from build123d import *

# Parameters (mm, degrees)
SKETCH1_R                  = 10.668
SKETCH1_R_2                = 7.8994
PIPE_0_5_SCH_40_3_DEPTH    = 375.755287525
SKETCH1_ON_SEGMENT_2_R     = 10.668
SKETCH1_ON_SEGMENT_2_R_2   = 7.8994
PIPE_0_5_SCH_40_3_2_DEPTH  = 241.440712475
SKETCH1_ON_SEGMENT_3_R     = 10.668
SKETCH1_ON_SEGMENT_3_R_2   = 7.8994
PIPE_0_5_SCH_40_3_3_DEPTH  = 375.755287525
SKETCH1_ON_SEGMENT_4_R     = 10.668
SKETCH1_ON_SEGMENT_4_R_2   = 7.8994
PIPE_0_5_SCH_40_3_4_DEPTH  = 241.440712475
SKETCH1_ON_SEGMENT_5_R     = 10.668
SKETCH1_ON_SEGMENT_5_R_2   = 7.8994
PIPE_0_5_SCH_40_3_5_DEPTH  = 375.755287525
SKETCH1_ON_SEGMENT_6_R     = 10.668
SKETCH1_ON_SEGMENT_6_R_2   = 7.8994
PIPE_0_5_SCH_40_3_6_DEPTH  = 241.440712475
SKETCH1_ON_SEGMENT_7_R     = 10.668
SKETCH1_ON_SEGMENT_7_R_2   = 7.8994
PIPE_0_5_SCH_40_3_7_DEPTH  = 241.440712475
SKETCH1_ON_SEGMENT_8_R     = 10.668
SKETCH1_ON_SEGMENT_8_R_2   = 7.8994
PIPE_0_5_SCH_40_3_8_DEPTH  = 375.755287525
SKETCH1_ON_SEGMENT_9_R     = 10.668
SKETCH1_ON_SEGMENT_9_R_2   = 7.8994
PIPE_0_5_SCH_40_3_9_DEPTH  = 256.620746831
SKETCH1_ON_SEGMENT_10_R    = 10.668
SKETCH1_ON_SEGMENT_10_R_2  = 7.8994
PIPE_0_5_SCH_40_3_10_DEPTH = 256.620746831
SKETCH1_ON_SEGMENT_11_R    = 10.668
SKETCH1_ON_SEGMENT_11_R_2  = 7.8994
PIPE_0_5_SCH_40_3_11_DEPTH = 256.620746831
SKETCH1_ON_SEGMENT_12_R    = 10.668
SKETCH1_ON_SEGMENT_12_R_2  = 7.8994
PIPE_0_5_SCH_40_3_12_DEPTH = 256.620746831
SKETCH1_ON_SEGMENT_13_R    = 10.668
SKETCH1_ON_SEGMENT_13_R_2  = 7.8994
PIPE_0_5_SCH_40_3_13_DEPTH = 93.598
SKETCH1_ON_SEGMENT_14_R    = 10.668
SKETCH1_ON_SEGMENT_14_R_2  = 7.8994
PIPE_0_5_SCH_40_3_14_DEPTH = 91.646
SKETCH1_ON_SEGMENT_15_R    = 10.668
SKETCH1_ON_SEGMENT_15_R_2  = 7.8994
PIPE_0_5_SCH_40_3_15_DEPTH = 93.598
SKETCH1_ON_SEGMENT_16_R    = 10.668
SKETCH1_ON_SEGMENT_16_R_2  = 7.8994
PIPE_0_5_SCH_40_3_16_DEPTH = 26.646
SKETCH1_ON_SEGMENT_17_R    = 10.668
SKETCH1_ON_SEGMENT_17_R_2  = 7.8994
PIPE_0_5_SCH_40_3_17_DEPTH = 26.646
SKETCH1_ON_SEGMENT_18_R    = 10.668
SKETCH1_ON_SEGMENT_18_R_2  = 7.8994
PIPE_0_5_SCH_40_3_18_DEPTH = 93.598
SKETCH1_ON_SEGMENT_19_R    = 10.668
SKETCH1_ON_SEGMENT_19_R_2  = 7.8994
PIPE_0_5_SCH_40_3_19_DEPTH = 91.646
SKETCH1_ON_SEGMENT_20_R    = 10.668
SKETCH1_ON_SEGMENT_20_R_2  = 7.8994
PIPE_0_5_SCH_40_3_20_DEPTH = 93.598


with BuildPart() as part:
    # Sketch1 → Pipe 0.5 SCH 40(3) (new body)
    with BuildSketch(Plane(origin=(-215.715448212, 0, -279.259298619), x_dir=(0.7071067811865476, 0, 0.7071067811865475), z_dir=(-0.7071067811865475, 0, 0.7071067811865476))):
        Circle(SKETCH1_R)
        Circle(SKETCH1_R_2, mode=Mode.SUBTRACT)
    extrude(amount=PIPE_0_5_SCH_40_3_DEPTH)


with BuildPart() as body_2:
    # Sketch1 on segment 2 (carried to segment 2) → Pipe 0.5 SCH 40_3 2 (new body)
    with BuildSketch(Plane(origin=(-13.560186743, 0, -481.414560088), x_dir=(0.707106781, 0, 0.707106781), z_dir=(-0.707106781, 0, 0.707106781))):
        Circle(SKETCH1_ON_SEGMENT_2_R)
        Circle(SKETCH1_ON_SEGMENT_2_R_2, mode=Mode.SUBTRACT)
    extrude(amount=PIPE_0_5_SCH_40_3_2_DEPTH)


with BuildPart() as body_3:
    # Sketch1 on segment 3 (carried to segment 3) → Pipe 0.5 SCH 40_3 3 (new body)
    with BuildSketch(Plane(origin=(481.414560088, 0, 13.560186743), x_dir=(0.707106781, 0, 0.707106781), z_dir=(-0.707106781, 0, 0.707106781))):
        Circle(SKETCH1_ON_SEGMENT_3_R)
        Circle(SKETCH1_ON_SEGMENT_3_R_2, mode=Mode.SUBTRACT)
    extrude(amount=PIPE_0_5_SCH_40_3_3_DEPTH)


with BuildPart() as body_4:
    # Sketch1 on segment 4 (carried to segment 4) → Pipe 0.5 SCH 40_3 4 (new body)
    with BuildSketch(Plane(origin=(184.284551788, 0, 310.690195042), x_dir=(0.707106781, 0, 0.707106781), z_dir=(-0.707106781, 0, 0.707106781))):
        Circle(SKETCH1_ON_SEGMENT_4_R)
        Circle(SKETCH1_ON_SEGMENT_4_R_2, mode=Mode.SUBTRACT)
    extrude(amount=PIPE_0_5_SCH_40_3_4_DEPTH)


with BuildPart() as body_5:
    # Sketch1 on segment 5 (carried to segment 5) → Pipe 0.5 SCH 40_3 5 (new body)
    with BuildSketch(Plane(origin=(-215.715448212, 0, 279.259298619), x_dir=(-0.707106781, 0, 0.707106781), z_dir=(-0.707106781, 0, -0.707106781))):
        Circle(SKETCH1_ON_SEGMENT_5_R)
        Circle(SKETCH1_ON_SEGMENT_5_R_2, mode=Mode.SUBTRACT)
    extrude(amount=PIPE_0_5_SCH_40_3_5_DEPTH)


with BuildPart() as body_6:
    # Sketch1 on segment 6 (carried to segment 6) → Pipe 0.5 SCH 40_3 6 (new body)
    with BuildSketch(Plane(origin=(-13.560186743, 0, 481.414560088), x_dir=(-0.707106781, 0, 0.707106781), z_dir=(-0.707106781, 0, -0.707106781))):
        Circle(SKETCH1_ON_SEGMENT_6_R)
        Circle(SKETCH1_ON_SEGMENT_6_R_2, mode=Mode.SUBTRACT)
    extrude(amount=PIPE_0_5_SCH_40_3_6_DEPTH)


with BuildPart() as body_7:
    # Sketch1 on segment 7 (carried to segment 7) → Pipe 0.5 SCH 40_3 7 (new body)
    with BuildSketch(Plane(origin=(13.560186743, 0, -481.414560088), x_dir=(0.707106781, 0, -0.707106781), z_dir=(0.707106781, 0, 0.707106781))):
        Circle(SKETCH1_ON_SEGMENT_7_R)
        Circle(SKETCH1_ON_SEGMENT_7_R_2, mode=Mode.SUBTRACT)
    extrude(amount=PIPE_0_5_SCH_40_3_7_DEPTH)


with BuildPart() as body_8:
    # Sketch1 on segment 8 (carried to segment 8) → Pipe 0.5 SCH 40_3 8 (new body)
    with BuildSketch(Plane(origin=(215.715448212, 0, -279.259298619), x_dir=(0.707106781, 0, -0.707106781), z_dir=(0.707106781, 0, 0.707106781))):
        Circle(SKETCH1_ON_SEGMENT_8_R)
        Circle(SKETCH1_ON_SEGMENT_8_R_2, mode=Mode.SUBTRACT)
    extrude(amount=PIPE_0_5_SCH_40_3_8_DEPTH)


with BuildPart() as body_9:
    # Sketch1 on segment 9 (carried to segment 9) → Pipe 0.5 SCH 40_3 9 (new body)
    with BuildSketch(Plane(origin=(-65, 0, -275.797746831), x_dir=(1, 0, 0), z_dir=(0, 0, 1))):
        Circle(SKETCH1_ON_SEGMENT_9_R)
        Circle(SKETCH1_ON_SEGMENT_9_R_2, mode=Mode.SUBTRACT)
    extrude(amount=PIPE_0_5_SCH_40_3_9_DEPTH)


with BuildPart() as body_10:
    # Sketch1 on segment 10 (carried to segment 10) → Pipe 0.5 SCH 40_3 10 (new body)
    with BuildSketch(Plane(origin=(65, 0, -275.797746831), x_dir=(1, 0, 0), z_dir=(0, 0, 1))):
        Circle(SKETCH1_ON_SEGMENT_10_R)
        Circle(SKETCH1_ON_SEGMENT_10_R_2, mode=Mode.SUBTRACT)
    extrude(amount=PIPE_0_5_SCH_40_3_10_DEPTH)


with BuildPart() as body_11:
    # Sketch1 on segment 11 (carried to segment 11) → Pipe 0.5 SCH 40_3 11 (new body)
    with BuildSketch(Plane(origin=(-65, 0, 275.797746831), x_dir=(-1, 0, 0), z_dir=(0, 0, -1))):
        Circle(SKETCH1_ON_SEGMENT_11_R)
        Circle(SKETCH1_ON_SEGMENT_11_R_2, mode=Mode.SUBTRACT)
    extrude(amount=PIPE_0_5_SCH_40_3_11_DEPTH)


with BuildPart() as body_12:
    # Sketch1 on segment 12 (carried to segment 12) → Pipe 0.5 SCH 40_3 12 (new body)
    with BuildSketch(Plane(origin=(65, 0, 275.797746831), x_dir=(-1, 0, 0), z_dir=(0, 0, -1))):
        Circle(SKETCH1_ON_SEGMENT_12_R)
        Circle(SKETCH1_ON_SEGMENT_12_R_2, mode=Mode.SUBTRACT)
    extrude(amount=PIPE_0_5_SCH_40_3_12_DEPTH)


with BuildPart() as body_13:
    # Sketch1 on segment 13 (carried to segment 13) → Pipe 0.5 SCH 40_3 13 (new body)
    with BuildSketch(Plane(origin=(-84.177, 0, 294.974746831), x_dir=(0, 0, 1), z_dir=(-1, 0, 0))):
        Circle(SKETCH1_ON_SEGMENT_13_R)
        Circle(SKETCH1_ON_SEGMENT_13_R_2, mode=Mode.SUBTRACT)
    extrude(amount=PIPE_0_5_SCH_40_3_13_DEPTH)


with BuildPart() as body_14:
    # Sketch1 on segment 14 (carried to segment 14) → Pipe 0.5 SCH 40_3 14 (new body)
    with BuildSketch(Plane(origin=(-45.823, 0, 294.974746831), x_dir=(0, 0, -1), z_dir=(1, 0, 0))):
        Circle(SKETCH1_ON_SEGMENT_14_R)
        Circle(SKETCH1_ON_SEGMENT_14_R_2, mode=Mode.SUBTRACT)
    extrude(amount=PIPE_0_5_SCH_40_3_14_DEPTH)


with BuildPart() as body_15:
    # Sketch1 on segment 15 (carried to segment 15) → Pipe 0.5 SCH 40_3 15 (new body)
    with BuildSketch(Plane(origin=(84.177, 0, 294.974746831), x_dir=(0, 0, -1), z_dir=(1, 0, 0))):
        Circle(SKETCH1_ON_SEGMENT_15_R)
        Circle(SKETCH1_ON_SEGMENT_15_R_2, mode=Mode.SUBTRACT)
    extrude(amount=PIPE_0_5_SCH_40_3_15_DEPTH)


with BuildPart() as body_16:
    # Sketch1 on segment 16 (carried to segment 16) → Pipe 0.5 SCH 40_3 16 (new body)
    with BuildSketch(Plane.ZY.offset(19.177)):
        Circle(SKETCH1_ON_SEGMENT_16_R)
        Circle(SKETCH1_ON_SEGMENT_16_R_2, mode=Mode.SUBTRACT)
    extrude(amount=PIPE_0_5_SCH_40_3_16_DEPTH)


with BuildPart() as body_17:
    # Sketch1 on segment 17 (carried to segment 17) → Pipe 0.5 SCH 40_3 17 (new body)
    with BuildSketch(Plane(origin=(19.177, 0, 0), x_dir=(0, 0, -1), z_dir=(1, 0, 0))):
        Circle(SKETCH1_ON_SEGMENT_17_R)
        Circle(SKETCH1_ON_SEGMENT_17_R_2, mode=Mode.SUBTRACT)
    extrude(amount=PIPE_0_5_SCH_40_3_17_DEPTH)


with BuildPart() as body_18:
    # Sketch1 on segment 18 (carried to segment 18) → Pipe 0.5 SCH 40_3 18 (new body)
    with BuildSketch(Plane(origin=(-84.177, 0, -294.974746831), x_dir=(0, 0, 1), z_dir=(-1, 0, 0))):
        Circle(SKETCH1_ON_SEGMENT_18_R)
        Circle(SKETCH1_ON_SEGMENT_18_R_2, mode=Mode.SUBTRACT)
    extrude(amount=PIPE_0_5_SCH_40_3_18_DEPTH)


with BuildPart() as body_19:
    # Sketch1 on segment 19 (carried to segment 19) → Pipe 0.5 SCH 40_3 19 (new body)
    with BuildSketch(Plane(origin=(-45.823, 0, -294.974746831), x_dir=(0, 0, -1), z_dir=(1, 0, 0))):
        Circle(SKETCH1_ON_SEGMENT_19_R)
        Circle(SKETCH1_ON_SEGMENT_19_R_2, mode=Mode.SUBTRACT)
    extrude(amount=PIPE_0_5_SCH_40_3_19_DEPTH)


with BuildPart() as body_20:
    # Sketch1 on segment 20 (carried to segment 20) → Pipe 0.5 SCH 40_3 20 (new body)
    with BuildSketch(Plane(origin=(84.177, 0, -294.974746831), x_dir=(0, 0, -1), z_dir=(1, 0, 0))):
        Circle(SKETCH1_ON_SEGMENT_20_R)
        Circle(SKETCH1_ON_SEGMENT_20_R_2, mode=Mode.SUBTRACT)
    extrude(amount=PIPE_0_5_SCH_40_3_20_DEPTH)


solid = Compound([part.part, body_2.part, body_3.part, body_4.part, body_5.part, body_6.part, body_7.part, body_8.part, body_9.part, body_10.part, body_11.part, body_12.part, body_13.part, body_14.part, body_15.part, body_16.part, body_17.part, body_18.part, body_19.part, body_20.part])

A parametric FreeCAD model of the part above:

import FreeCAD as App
import Part
import Sketcher
from FreeCAD import Vector
Q = App.Units.Quantity

doc = App.newDocument("Part")
body = doc.addObject("PartDesign::Body", "Body")

sketch1 = doc.addObject("Sketcher::SketchObject", "Sketch")
body.addObject(sketch1)
sketch1.Placement = App.Placement(Vector(-215.715448, 0, -279.259299), App.Rotation(Vector(0.707106781, 0, 0.707106781), Vector(0, 0.999999999, 0), Vector(-0.707106781, 0, 0.707106781), "ZXY"))
sketch1.addGeometry(Part.Circle(Vector(0, 0, 0), Vector(0, 0, 1), 10.668), False)
sketch1.addGeometry(Part.Circle(Vector(0, 0, 0), Vector(0, 0, 1), 7.8994), False)
sketch1.addConstraint(Sketcher.Constraint("Coincident", 0, 3, -1, 1))
sketch1.addConstraint(Sketcher.Constraint("Coincident", 1, 3, -1, 1))
sketch1.addConstraint(Sketcher.Constraint("Diameter", 0, Q("0.84 in")))
sketch1.addConstraint(Sketcher.Constraint("Diameter", 1, Q("0.622 in")))
pad1 = doc.addObject("PartDesign::Pad", "Pad")
body.addObject(pad1)
pad1.Profile = sketch1
pad1.Length = 375.755288
body2 = doc.addObject("PartDesign::Body", "Body001")

sketch2 = doc.addObject("Sketcher::SketchObject", "Sketch001")
body2.addObject(sketch2)
sketch2.Placement = App.Placement(Vector(-13.560187, 0, -481.41456), App.Rotation(Vector(0.707106781, 0, 0.707106781), Vector(0, 0.999999999, 0), Vector(-0.707106781, 0, 0.707106781), "ZXY"))
sketch2.addGeometry(Part.Circle(Vector(0, 0, 0), Vector(0, 0, 1), 10.668), False)
sketch2.addGeometry(Part.Circle(Vector(0, 0, 0), Vector(0, 0, 1), 7.8994), False)
sketch2.addConstraint(Sketcher.Constraint("Coincident", 0, 3, -1, 1))
sketch2.addConstraint(Sketcher.Constraint("Coincident", 1, 3, -1, 1))
sketch2.addConstraint(Sketcher.Constraint("Diameter", 0, Q("0.84 in")))
sketch2.addConstraint(Sketcher.Constraint("Diameter", 1, Q("0.622 in")))
pad2 = doc.addObject("PartDesign::Pad", "Pad001")
body2.addObject(pad2)
pad2.Profile = sketch2
pad2.Length = 241.440712
body3 = doc.addObject("PartDesign::Body", "Body002")

sketch3 = doc.addObject("Sketcher::SketchObject", "Sketch002")
body3.addObject(sketch3)
sketch3.Placement = App.Placement(Vector(481.41456, 0, 13.560187), App.Rotation(Vector(0.707106781, 0, 0.707106781), Vector(0, 0.999999999, 0), Vector(-0.707106781, 0, 0.707106781), "ZXY"))
sketch3.addGeometry(Part.Circle(Vector(0, 0, 0), Vector(0, 0, 1), 10.668), False)
sketch3.addGeometry(Part.Circle(Vector(0, 0, 0), Vector(0, 0, 1), 7.8994), False)
sketch3.addConstraint(Sketcher.Constraint("Coincident", 0, 3, -1, 1))
sketch3.addConstraint(Sketcher.Constraint("Coincident", 1, 3, -1, 1))
sketch3.addConstraint(Sketcher.Constraint("Diameter", 0, Q("0.84 in")))
sketch3.addConstraint(Sketcher.Constraint("Diameter", 1, Q("0.622 in")))
pad3 = doc.addObject("PartDesign::Pad", "Pad002")
body3.addObject(pad3)
pad3.Profile = sketch3
pad3.Length = 375.755288
body4 = doc.addObject("PartDesign::Body", "Body003")

sketch4 = doc.addObject("Sketcher::SketchObject", "Sketch003")
body4.addObject(sketch4)
sketch4.Placement = App.Placement(Vector(184.284552, 0, 310.690195), App.Rotation(Vector(0.707106781, 0, 0.707106781), Vector(0, 0.999999999, 0), Vector(-0.707106781, 0, 0.707106781), "ZXY"))
sketch4.addGeometry(Part.Circle(Vector(0, 0, 0), Vector(0, 0, 1), 10.668), False)
sketch4.addGeometry(Part.Circle(Vector(0, 0, 0), Vector(0, 0, 1), 7.8994), False)
sketch4.addConstraint(Sketcher.Constraint("Coincident", 0, 3, -1, 1))
sketch4.addConstraint(Sketcher.Constraint("Coincident", 1, 3, -1, 1))
sketch4.addConstraint(Sketcher.Constraint("Diameter", 0, Q("0.84 in")))
sketch4.addConstraint(Sketcher.Constraint("Diameter", 1, Q("0.622 in")))
pad4 = doc.addObject("PartDesign::Pad", "Pad003")
body4.addObject(pad4)
pad4.Profile = sketch4
pad4.Length = 241.440712
body5 = doc.addObject("PartDesign::Body", "Body004")

sketch5 = doc.addObject("Sketcher::SketchObject", "Sketch004")
body5.addObject(sketch5)
sketch5.Placement = App.Placement(Vector(-215.715448, 0, 279.259299), App.Rotation(Vector(-0.707106781, 0, 0.707106781), Vector(0, 0.999999999, 0), Vector(-0.707106781, 0, -0.707106781), "ZXY"))
sketch5.addGeometry(Part.Circle(Vector(0, 0, 0), Vector(0, 0, 1), 10.668), False)
sketch5.addGeometry(Part.Circle(Vector(0, 0, 0), Vector(0, 0, 1), 7.8994), False)
sketch5.addConstraint(Sketcher.Constraint("Coincident", 0, 3, -1, 1))
sketch5.addConstraint(Sketcher.Constraint("Coincident", 1, 3, -1, 1))
sketch5.addConstraint(Sketcher.Constraint("Diameter", 0, Q("0.84 in")))
sketch5.addConstraint(Sketcher.Constraint("Diameter", 1, Q("0.622 in")))
pad5 = doc.addObject("PartDesign::Pad", "Pad004")
body5.addObject(pad5)
pad5.Profile = sketch5
pad5.Length = 375.755288
body6 = doc.addObject("PartDesign::Body", "Body005")

sketch6 = doc.addObject("Sketcher::SketchObject", "Sketch005")
body6.addObject(sketch6)
sketch6.Placement = App.Placement(Vector(-13.560187, 0, 481.41456), App.Rotation(Vector(-0.707106781, 0, 0.707106781), Vector(0, 0.999999999, 0), Vector(-0.707106781, 0, -0.707106781), "ZXY"))
sketch6.addGeometry(Part.Circle(Vector(0, 0, 0), Vector(0, 0, 1), 10.668), False)
sketch6.addGeometry(Part.Circle(Vector(0, 0, 0), Vector(0, 0, 1), 7.8994), False)
sketch6.addConstraint(Sketcher.Constraint("Coincident", 0, 3, -1, 1))
sketch6.addConstraint(Sketcher.Constraint("Coincident", 1, 3, -1, 1))
sketch6.addConstraint(Sketcher.Constraint("Diameter", 0, Q("0.84 in")))
sketch6.addConstraint(Sketcher.Constraint("Diameter", 1, Q("0.622 in")))
pad6 = doc.addObject("PartDesign::Pad", "Pad005")
body6.addObject(pad6)
pad6.Profile = sketch6
pad6.Length = 241.440712
body7 = doc.addObject("PartDesign::Body", "Body006")

sketch7 = doc.addObject("Sketcher::SketchObject", "Sketch006")
body7.addObject(sketch7)
sketch7.Placement = App.Placement(Vector(13.560187, 0, -481.41456), App.Rotation(Vector(0.707106781, 0, -0.707106781), Vector(0, 0.999999999, 0), Vector(0.707106781, 0, 0.707106781), "ZXY"))
sketch7.addGeometry(Part.Circle(Vector(0, 0, 0), Vector(0, 0, 1), 10.668), False)
sketch7.addGeometry(Part.Circle(Vector(0, 0, 0), Vector(0, 0, 1), 7.8994), False)
sketch7.addConstraint(Sketcher.Constraint("Coincident", 0, 3, -1, 1))
sketch7.addConstraint(Sketcher.Constraint("Coincident", 1, 3, -1, 1))
sketch7.addConstraint(Sketcher.Constraint("Diameter", 0, Q("0.84 in")))
sketch7.addConstraint(Sketcher.Constraint("Diameter", 1, Q("0.622 in")))
pad7 = doc.addObject("PartDesign::Pad", "Pad006")
body7.addObject(pad7)
pad7.Profile = sketch7
pad7.Length = 241.440712
body8 = doc.addObject("PartDesign::Body", "Body007")

sketch8 = doc.addObject("Sketcher::SketchObject", "Sketch007")
body8.addObject(sketch8)
sketch8.Placement = App.Placement(Vector(215.715448, 0, -279.259299), App.Rotation(Vector(0.707106781, 0, -0.707106781), Vector(0, 0.999999999, 0), Vector(0.707106781, 0, 0.707106781), "ZXY"))
sketch8.addGeometry(Part.Circle(Vector(0, 0, 0), Vector(0, 0, 1), 10.668), False)
sketch8.addGeometry(Part.Circle(Vector(0, 0, 0), Vector(0, 0, 1), 7.8994), False)
sketch8.addConstraint(Sketcher.Constraint("Coincident", 0, 3, -1, 1))
sketch8.addConstraint(Sketcher.Constraint("Coincident", 1, 3, -1, 1))
sketch8.addConstraint(Sketcher.Constraint("Diameter", 0, Q("0.84 in")))
sketch8.addConstraint(Sketcher.Constraint("Diameter", 1, Q("0.622 in")))
pad8 = doc.addObject("PartDesign::Pad", "Pad007")
body8.addObject(pad8)
pad8.Profile = sketch8
pad8.Length = 375.755288
body9 = doc.addObject("PartDesign::Body", "Body008")

sketch9 = doc.addObject("Sketcher::SketchObject", "Sketch008")
body9.addObject(sketch9)
sketch9.AttachmentSupport = (doc.getObject("XY_Plane008"), [""])
sketch9.MapMode = "FlatFace"
sketch9.AttachmentOffset = App.Placement(Vector(0, 0, -275.797747), App.Rotation())
sketch9.addGeometry(Part.Circle(Vector(-65, 0, 0), Vector(0, 0, 1), 10.668), False)
sketch9.addGeometry(Part.Circle(Vector(-65, 0, 0), Vector(0, 0, 1), 7.8994), False)
sketch9.addConstraint(Sketcher.Constraint("Coincident", 1, 3, 0, 3))
sketch9.addConstraint(Sketcher.Constraint("PointOnObject", 0, 3, -1))
sketch9.addConstraint(Sketcher.Constraint("Diameter", 0, Q("0.84 in")))
sketch9.addConstraint(Sketcher.Constraint("Diameter", 1, Q("0.622 in")))
sketch9.addConstraint(Sketcher.Constraint("DistanceX", 0, 3, -1, 1, Q("65 mm")))
pad9 = doc.addObject("PartDesign::Pad", "Pad008")
body9.addObject(pad9)
pad9.Profile = sketch9
pad9.Length = 256.620747
body10 = doc.addObject("PartDesign::Body", "Body009")

sketch10 = doc.addObject("Sketcher::SketchObject", "Sketch009")
body10.addObject(sketch10)
sketch10.AttachmentSupport = (doc.getObject("XY_Plane009"), [""])
sketch10.MapMode = "FlatFace"
sketch10.AttachmentOffset = App.Placement(Vector(0, 0, -275.797747), App.Rotation())
sketch10.addGeometry(Part.Circle(Vector(65, 0, 0), Vector(0, 0, 1), 10.668), False)
sketch10.addGeometry(Part.Circle(Vector(65, 0, 0), Vector(0, 0, 1), 7.8994), False)
sketch10.addConstraint(Sketcher.Constraint("Coincident", 1, 3, 0, 3))
sketch10.addConstraint(Sketcher.Constraint("PointOnObject", 0, 3, -1))
sketch10.addConstraint(Sketcher.Constraint("Diameter", 0, Q("0.84 in")))
sketch10.addConstraint(Sketcher.Constraint("Diameter", 1, Q("0.622 in")))
sketch10.addConstraint(Sketcher.Constraint("DistanceX", -1, 1, 0, 3, Q("65 mm")))
pad10 = doc.addObject("PartDesign::Pad", "Pad009")
body10.addObject(pad10)
pad10.Profile = sketch10
pad10.Length = 256.620747
body11 = doc.addObject("PartDesign::Body", "Body010")

sketch11 = doc.addObject("Sketcher::SketchObject", "Sketch010")
body11.addObject(sketch11)
sketch11.AttachmentSupport = (doc.getObject("XY_Plane010"), [""])
sketch11.MapMode = "FlatFace"
sketch11.AttachmentOffset = App.Placement(Vector(0, 0, 275.797747), App.Rotation())
sketch11.addGeometry(Part.Circle(Vector(-65, 0, 0), Vector(0, 0, 1), 10.668), False)
sketch11.addGeometry(Part.Circle(Vector(-65, 0, 0), Vector(0, 0, 1), 7.8994), False)
sketch11.addConstraint(Sketcher.Constraint("Coincident", 1, 3, 0, 3))
sketch11.addConstraint(Sketcher.Constraint("PointOnObject", 0, 3, -1))
sketch11.addConstraint(Sketcher.Constraint("Diameter", 0, Q("0.84 in")))
sketch11.addConstraint(Sketcher.Constraint("Diameter", 1, Q("0.622 in")))
sketch11.addConstraint(Sketcher.Constraint("DistanceX", 0, 3, -1, 1, Q("65 mm")))
pad11 = doc.addObject("PartDesign::Pad", "Pad010")
body11.addObject(pad11)
pad11.Profile = sketch11
pad11.Length = 256.620747
pad11.Reversed = True
body12 = doc.addObject("PartDesign::Body", "Body011")

sketch12 = doc.addObject("Sketcher::SketchObject", "Sketch011")
body12.addObject(sketch12)
sketch12.AttachmentSupport = (doc.getObject("XY_Plane011"), [""])
sketch12.MapMode = "FlatFace"
sketch12.AttachmentOffset = App.Placement(Vector(0, 0, 275.797747), App.Rotation())
sketch12.addGeometry(Part.Circle(Vector(65, 0, 0), Vector(0, 0, 1), 10.668), False)
sketch12.addGeometry(Part.Circle(Vector(65, 0, 0), Vector(0, 0, 1), 7.8994), False)
sketch12.addConstraint(Sketcher.Constraint("Coincident", 1, 3, 0, 3))
sketch12.addConstraint(Sketcher.Constraint("PointOnObject", 0, 3, -1))
sketch12.addConstraint(Sketcher.Constraint("Diameter", 0, Q("0.84 in")))
sketch12.addConstraint(Sketcher.Constraint("Diameter", 1, Q("0.622 in")))
sketch12.addConstraint(Sketcher.Constraint("DistanceX", -1, 1, 0, 3, Q("65 mm")))
pad12 = doc.addObject("PartDesign::Pad", "Pad011")
body12.addObject(pad12)
pad12.Profile = sketch12
pad12.Length = 256.620747
pad12.Reversed = True
body13 = doc.addObject("PartDesign::Body", "Body012")

sketch13 = doc.addObject("Sketcher::SketchObject", "Sketch012")
body13.addObject(sketch13)
sketch13.AttachmentSupport = (doc.getObject("YZ_Plane012"), [""])
sketch13.MapMode = "FlatFace"
sketch13.AttachmentOffset = App.Placement(Vector(0, 0, -84.177), App.Rotation())
sketch13.addGeometry(Part.Circle(Vector(0, 294.974747, 0), Vector(0, 0, 1), 10.668), False)
sketch13.addGeometry(Part.Circle(Vector(0, 294.974747, 0), Vector(0, 0, 1), 7.8994), False)
sketch13.addConstraint(Sketcher.Constraint("Coincident", 1, 3, 0, 3))
sketch13.addConstraint(Sketcher.Constraint("PointOnObject", 0, 3, -2))
sketch13.addConstraint(Sketcher.Constraint("Diameter", 0, Q("0.84 in")))
sketch13.addConstraint(Sketcher.Constraint("Diameter", 1, Q("0.622 in")))
sketch13.addConstraint(Sketcher.Constraint("DistanceY", -1, 1, 0, 3, Q("294.974747 mm")))
pad13 = doc.addObject("PartDesign::Pad", "Pad012")
body13.addObject(pad13)
pad13.Profile = sketch13
pad13.Length = 93.598
pad13.Reversed = True
body14 = doc.addObject("PartDesign::Body", "Body013")

sketch14 = doc.addObject("Sketcher::SketchObject", "Sketch013")
body14.addObject(sketch14)
sketch14.AttachmentSupport = (doc.getObject("YZ_Plane013"), [""])
sketch14.MapMode = "FlatFace"
sketch14.AttachmentOffset = App.Placement(Vector(0, 0, -45.823), App.Rotation())
sketch14.addGeometry(Part.Circle(Vector(0, 294.974747, 0), Vector(0, 0, 1), 10.668), False)
sketch14.addGeometry(Part.Circle(Vector(0, 294.974747, 0), Vector(0, 0, 1), 7.8994), False)
sketch14.addConstraint(Sketcher.Constraint("Coincident", 1, 3, 0, 3))
sketch14.addConstraint(Sketcher.Constraint("PointOnObject", 0, 3, -2))
sketch14.addConstraint(Sketcher.Constraint("Diameter", 0, Q("0.84 in")))
sketch14.addConstraint(Sketcher.Constraint("Diameter", 1, Q("0.622 in")))
sketch14.addConstraint(Sketcher.Constraint("DistanceY", -1, 1, 0, 3, Q("294.974747 mm")))
pad14 = doc.addObject("PartDesign::Pad", "Pad013")
body14.addObject(pad14)
pad14.Profile = sketch14
pad14.Length = 91.646
body15 = doc.addObject("PartDesign::Body", "Body014")

sketch15 = doc.addObject("Sketcher::SketchObject", "Sketch014")
body15.addObject(sketch15)
sketch15.AttachmentSupport = (doc.getObject("YZ_Plane014"), [""])
sketch15.MapMode = "FlatFace"
sketch15.AttachmentOffset = App.Placement(Vector(0, 0, 84.177), App.Rotation())
sketch15.addGeometry(Part.Circle(Vector(0, 294.974747, 0), Vector(0, 0, 1), 10.668), False)
sketch15.addGeometry(Part.Circle(Vector(0, 294.974747, 0), Vector(0, 0, 1), 7.8994), False)
sketch15.addConstraint(Sketcher.Constraint("Coincident", 1, 3, 0, 3))
sketch15.addConstraint(Sketcher.Constraint("PointOnObject", 0, 3, -2))
sketch15.addConstraint(Sketcher.Constraint("Diameter", 0, Q("0.84 in")))
sketch15.addConstraint(Sketcher.Constraint("Diameter", 1, Q("0.622 in")))
sketch15.addConstraint(Sketcher.Constraint("DistanceY", -1, 1, 0, 3, Q("294.974747 mm")))
pad15 = doc.addObject("PartDesign::Pad", "Pad014")
body15.addObject(pad15)
pad15.Profile = sketch15
pad15.Length = 93.598
body16 = doc.addObject("PartDesign::Body", "Body015")

sketch16 = doc.addObject("Sketcher::SketchObject", "Sketch015")
body16.addObject(sketch16)
sketch16.AttachmentSupport = (doc.getObject("YZ_Plane015"), [""])
sketch16.MapMode = "FlatFace"
sketch16.AttachmentOffset = App.Placement(Vector(0, 0, -0.755 * 25.4), App.Rotation())
sketch16.addGeometry(Part.Circle(Vector(0, 0, 0), Vector(0, 0, 1), 10.668), False)
sketch16.addGeometry(Part.Circle(Vector(0, 0, 0), Vector(0, 0, 1), 7.8994), False)
sketch16.addConstraint(Sketcher.Constraint("Coincident", 0, 3, -1, 1))
sketch16.addConstraint(Sketcher.Constraint("Coincident", 1, 3, -1, 1))
sketch16.addConstraint(Sketcher.Constraint("Diameter", 0, Q("0.84 in")))
sketch16.addConstraint(Sketcher.Constraint("Diameter", 1, Q("0.622 in")))
pad16 = doc.addObject("PartDesign::Pad", "Pad015")
body16.addObject(pad16)
pad16.Profile = sketch16
pad16.Length = 26.646
pad16.Reversed = True
body17 = doc.addObject("PartDesign::Body", "Body016")

sketch17 = doc.addObject("Sketcher::SketchObject", "Sketch016")
body17.addObject(sketch17)
sketch17.AttachmentSupport = (doc.getObject("YZ_Plane016"), [""])
sketch17.MapMode = "FlatFace"
sketch17.AttachmentOffset = App.Placement(Vector(0, 0, 0.755 * 25.4), App.Rotation())
sketch17.addGeometry(Part.Circle(Vector(0, 0, 0), Vector(0, 0, 1), 10.668), False)
sketch17.addGeometry(Part.Circle(Vector(0, 0, 0), Vector(0, 0, 1), 7.8994), False)
sketch17.addConstraint(Sketcher.Constraint("Coincident", 0, 3, -1, 1))
sketch17.addConstraint(Sketcher.Constraint("Coincident", 1, 3, -1, 1))
sketch17.addConstraint(Sketcher.Constraint("Diameter", 0, Q("0.84 in")))
sketch17.addConstraint(Sketcher.Constraint("Diameter", 1, Q("0.622 in")))
pad17 = doc.addObject("PartDesign::Pad", "Pad016")
body17.addObject(pad17)
pad17.Profile = sketch17
pad17.Length = 26.646
body18 = doc.addObject("PartDesign::Body", "Body017")

sketch18 = doc.addObject("Sketcher::SketchObject", "Sketch017")
body18.addObject(sketch18)
sketch18.AttachmentSupport = (doc.getObject("YZ_Plane017"), [""])
sketch18.MapMode = "FlatFace"
sketch18.AttachmentOffset = App.Placement(Vector(0, 0, -84.177), App.Rotation())
sketch18.addGeometry(Part.Circle(Vector(0, -294.974747, 0), Vector(0, 0, 1), 10.668), False)
sketch18.addGeometry(Part.Circle(Vector(0, -294.974747, 0), Vector(0, 0, 1), 7.8994), False)
sketch18.addConstraint(Sketcher.Constraint("Coincident", 1, 3, 0, 3))
sketch18.addConstraint(Sketcher.Constraint("PointOnObject", 0, 3, -2))
sketch18.addConstraint(Sketcher.Constraint("Diameter", 0, Q("0.84 in")))
sketch18.addConstraint(Sketcher.Constraint("Diameter", 1, Q("0.622 in")))
sketch18.addConstraint(Sketcher.Constraint("DistanceY", 0, 3, -1, 1, Q("294.974747 mm")))
pad18 = doc.addObject("PartDesign::Pad", "Pad017")
body18.addObject(pad18)
pad18.Profile = sketch18
pad18.Length = 93.598
pad18.Reversed = True
body19 = doc.addObject("PartDesign::Body", "Body018")

sketch19 = doc.addObject("Sketcher::SketchObject", "Sketch018")
body19.addObject(sketch19)
sketch19.AttachmentSupport = (doc.getObject("YZ_Plane018"), [""])
sketch19.MapMode = "FlatFace"
sketch19.AttachmentOffset = App.Placement(Vector(0, 0, -45.823), App.Rotation())
sketch19.addGeometry(Part.Circle(Vector(0, -294.974747, 0), Vector(0, 0, 1), 10.668), False)
sketch19.addGeometry(Part.Circle(Vector(0, -294.974747, 0), Vector(0, 0, 1), 7.8994), False)
sketch19.addConstraint(Sketcher.Constraint("Coincident", 1, 3, 0, 3))
sketch19.addConstraint(Sketcher.Constraint("PointOnObject", 0, 3, -2))
sketch19.addConstraint(Sketcher.Constraint("Diameter", 0, Q("0.84 in")))
sketch19.addConstraint(Sketcher.Constraint("Diameter", 1, Q("0.622 in")))
sketch19.addConstraint(Sketcher.Constraint("DistanceY", 0, 3, -1, 1, Q("294.974747 mm")))
pad19 = doc.addObject("PartDesign::Pad", "Pad018")
body19.addObject(pad19)
pad19.Profile = sketch19
pad19.Length = 91.646
body20 = doc.addObject("PartDesign::Body", "Body019")

sketch20 = doc.addObject("Sketcher::SketchObject", "Sketch019")
body20.addObject(sketch20)
sketch20.AttachmentSupport = (doc.getObject("YZ_Plane019"), [""])
sketch20.MapMode = "FlatFace"
sketch20.AttachmentOffset = App.Placement(Vector(0, 0, 84.177), App.Rotation())
sketch20.addGeometry(Part.Circle(Vector(0, -294.974747, 0), Vector(0, 0, 1), 10.668), False)
sketch20.addGeometry(Part.Circle(Vector(0, -294.974747, 0), Vector(0, 0, 1), 7.8994), False)
sketch20.addConstraint(Sketcher.Constraint("Coincident", 1, 3, 0, 3))
sketch20.addConstraint(Sketcher.Constraint("PointOnObject", 0, 3, -2))
sketch20.addConstraint(Sketcher.Constraint("Diameter", 0, Q("0.84 in")))
sketch20.addConstraint(Sketcher.Constraint("Diameter", 1, Q("0.622 in")))
sketch20.addConstraint(Sketcher.Constraint("DistanceY", 0, 3, -1, 1, Q("294.974747 mm")))
pad20 = doc.addObject("PartDesign::Pad", "Pad019")
body20.addObject(pad20)
pad20.Profile = sketch20
pad20.Length = 93.598

doc.recompute()
